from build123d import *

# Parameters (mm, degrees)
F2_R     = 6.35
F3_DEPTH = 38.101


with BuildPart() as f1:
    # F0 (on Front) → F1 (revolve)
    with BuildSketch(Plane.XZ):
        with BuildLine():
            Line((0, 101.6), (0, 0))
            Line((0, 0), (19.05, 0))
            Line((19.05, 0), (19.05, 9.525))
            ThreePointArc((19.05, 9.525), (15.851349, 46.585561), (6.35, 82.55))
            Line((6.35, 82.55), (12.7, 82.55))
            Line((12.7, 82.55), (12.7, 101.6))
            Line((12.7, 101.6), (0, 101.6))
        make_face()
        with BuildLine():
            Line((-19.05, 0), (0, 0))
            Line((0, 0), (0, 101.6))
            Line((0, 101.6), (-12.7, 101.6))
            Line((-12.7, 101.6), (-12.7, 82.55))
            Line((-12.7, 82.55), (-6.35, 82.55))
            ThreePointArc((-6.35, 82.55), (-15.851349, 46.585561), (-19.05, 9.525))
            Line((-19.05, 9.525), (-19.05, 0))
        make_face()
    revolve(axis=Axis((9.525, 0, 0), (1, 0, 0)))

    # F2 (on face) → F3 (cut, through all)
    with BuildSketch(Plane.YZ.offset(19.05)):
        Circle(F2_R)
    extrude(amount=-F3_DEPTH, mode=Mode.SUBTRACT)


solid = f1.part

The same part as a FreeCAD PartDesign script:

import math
import FreeCAD as App
import Part
import Sketcher
from FreeCAD import Vector
Q = App.Units.Quantity

doc = App.newDocument("Part")
body = doc.addObject("PartDesign::Body", "Body")

# Sketch on XZ plane
sketch1 = doc.addObject("Sketcher::SketchObject", "Sketch")
body.addObject(sketch1)
sketch1.AttachmentSupport = (doc.XZ_Plane, [""])
sketch1.MapMode = "FlatFace"
sketch1.addGeometry(Part.LineSegment(Vector(19, 0, 0), Vector(19, 10, 0)), False)
sketch1.addGeometry(Part.ArcOfCircle(Part.Circle(Vector(-197, 10, 0), Vector(0, 0, 1), 216), math.radians(0), math.radians(19.73)), False)
sketch1.addGeometry(Part.LineSegment(Vector(6, 83, 0), Vector(13, 83, 0)), False)
sketch1.addGeometry(Part.LineSegment(Vector(13, 83, 0), Vector(13, 102, 0)), False)
sketch1.addGeometry(Part.LineSegment(Vector(13, 102, 0), Vector(-13, 102, 0)), False)
sketch1.addGeometry(Part.LineSegment(Vector(-13, 102, 0), Vector(-13, 83, 0)), False)
sketch1.addGeometry(Part.LineSegment(Vector(-13, 83, 0), Vector(-6, 83, 0)), False)
sketch1.addGeometry(Part.ArcOfCircle(Part.Circle(Vector(197, 10, 0), Vector(0, 0, 1), 216), math.radians(160.27), math.radians(180)), False)
sketch1.addGeometry(Part.LineSegment(Vector(-19, 10, 0), Vector(-19, 0, 0)), False)
sketch1.addGeometry(Part.LineSegment(Vector(-19, 0, 0), Vector(19, 0, 0)), False)
sketch1.addConstraint(Sketcher.Constraint("Tangent", 0, 2, 1, 1))
sketch1.addConstraint(Sketcher.Constraint("Coincident", 1, 2, 2, 1))
sketch1.addConstraint(Sketcher.Constraint("Coincident", 2, 2, 3, 1))
sketch1.addConstraint(Sketcher.Constraint("Coincident", 3, 2, 4, 1))
sketch1.addConstraint(Sketcher.Constraint("Coincident", 4, 2, 5, 1))
sketch1.addConstraint(Sketcher.Constraint("Coincident", 5, 2, 6, 1))
sketch1.addConstraint(Sketcher.Constraint("Coincident", 6, 2, 7, 1))
sketch1.addConstraint(Sketcher.Constraint("Tangent", 7, 2, 8, 1))
sketch1.addConstraint(Sketcher.Constraint("Coincident", 8, 2, 9, 1))
sketch1.addConstraint(Sketcher.Constraint("Coincident", 9, 2, 0, 1))
sketch1.addConstraint(Sketcher.Constraint("Vertical", 0))
sketch1.addConstraint(Sketcher.Constraint("Horizontal", 2))
sketch1.addConstraint(Sketcher.Constraint("Vertical", 3))
sketch1.addConstraint(Sketcher.Constraint("Horizontal", 4))
sketch1.addConstraint(Sketcher.Constraint("Vertical", 5))
sketch1.addConstraint(Sketcher.Constraint("Horizontal", 6))
sketch1.addConstraint(Sketcher.Constraint("Vertical", 8))
sketch1.addConstraint(Sketcher.Constraint("Horizontal", 9))
sketch1.addConstraint(Sketcher.Constraint("Equal", 1, 7))
sketch1.addConstraint(Sketcher.Constraint("Symmetric", 8, 2, 9, 2, -1, 1))
sketch1.addConstraint(Sketcher.Constraint("Symmetric", 2, 2, 5, 2, -2))
sketch1.addConstraint(Sketcher.Constraint("Horizontal", 1, 3, 7, 3))
sketch1.addConstraint(Sketcher.Constraint("DistanceX", 4, 2, 4, 1, Q("1 in")))
sketch1.addConstraint(Sketcher.Constraint("DistanceX", 9, 1, 9, 2, Q("1.5 in")))
sketch1.addConstraint(Sketcher.Constraint("DistanceY", -1, 1, 3, 2, Q("4 in")))
sketch1.addConstraint(Sketcher.Constraint("DistanceX", 7, 2, 1, 2, Q("1 in")))
sketch1.addConstraint(Sketcher.Constraint("DistanceY", 3, 1, 3, 2, Q("0.75 in")))
sketch1.addConstraint(Sketcher.Constraint("DistanceY", 0, 1, 0, 2, Q("0.375 in")))
revolution = doc.addObject("PartDesign::Revolution", "Revolution")
body.addObject(revolution)
revolution.Profile = sketch1
revolution.ReferenceAxis = (sketch1, ["H_Axis"])
revolution.Angle = 360

# Sketch on YZ plane
sketch2 = doc.addObject("Sketcher::SketchObject", "Sketch001")
body.addObject(sketch2)
sketch2.AttachmentSupport = (doc.YZ_Plane, [""])
sketch2.MapMode = "FlatFace"
sketch2.AttachmentOffset = App.Placement(Vector(0, 0, 0.75 * 25.4), App.Rotation())
sketch2.addGeometry(Part.Circle(Vector(0, 0, 0), Vector(0, 0, 1), 6), False)
sketch2.addConstraint(Sketcher.Constraint("Coincident", 0, 3, -1, 1))
sketch2.addConstraint(Sketcher.Constraint("Diameter", 0, Q("0.5 in")))
pocket1 = doc.addObject("PartDesign::Pocket", "Pocket")
body.addObject(pocket1)
pocket1.Profile = sketch2
pocket1.Type = "ThroughAll"

doc.recompute()
